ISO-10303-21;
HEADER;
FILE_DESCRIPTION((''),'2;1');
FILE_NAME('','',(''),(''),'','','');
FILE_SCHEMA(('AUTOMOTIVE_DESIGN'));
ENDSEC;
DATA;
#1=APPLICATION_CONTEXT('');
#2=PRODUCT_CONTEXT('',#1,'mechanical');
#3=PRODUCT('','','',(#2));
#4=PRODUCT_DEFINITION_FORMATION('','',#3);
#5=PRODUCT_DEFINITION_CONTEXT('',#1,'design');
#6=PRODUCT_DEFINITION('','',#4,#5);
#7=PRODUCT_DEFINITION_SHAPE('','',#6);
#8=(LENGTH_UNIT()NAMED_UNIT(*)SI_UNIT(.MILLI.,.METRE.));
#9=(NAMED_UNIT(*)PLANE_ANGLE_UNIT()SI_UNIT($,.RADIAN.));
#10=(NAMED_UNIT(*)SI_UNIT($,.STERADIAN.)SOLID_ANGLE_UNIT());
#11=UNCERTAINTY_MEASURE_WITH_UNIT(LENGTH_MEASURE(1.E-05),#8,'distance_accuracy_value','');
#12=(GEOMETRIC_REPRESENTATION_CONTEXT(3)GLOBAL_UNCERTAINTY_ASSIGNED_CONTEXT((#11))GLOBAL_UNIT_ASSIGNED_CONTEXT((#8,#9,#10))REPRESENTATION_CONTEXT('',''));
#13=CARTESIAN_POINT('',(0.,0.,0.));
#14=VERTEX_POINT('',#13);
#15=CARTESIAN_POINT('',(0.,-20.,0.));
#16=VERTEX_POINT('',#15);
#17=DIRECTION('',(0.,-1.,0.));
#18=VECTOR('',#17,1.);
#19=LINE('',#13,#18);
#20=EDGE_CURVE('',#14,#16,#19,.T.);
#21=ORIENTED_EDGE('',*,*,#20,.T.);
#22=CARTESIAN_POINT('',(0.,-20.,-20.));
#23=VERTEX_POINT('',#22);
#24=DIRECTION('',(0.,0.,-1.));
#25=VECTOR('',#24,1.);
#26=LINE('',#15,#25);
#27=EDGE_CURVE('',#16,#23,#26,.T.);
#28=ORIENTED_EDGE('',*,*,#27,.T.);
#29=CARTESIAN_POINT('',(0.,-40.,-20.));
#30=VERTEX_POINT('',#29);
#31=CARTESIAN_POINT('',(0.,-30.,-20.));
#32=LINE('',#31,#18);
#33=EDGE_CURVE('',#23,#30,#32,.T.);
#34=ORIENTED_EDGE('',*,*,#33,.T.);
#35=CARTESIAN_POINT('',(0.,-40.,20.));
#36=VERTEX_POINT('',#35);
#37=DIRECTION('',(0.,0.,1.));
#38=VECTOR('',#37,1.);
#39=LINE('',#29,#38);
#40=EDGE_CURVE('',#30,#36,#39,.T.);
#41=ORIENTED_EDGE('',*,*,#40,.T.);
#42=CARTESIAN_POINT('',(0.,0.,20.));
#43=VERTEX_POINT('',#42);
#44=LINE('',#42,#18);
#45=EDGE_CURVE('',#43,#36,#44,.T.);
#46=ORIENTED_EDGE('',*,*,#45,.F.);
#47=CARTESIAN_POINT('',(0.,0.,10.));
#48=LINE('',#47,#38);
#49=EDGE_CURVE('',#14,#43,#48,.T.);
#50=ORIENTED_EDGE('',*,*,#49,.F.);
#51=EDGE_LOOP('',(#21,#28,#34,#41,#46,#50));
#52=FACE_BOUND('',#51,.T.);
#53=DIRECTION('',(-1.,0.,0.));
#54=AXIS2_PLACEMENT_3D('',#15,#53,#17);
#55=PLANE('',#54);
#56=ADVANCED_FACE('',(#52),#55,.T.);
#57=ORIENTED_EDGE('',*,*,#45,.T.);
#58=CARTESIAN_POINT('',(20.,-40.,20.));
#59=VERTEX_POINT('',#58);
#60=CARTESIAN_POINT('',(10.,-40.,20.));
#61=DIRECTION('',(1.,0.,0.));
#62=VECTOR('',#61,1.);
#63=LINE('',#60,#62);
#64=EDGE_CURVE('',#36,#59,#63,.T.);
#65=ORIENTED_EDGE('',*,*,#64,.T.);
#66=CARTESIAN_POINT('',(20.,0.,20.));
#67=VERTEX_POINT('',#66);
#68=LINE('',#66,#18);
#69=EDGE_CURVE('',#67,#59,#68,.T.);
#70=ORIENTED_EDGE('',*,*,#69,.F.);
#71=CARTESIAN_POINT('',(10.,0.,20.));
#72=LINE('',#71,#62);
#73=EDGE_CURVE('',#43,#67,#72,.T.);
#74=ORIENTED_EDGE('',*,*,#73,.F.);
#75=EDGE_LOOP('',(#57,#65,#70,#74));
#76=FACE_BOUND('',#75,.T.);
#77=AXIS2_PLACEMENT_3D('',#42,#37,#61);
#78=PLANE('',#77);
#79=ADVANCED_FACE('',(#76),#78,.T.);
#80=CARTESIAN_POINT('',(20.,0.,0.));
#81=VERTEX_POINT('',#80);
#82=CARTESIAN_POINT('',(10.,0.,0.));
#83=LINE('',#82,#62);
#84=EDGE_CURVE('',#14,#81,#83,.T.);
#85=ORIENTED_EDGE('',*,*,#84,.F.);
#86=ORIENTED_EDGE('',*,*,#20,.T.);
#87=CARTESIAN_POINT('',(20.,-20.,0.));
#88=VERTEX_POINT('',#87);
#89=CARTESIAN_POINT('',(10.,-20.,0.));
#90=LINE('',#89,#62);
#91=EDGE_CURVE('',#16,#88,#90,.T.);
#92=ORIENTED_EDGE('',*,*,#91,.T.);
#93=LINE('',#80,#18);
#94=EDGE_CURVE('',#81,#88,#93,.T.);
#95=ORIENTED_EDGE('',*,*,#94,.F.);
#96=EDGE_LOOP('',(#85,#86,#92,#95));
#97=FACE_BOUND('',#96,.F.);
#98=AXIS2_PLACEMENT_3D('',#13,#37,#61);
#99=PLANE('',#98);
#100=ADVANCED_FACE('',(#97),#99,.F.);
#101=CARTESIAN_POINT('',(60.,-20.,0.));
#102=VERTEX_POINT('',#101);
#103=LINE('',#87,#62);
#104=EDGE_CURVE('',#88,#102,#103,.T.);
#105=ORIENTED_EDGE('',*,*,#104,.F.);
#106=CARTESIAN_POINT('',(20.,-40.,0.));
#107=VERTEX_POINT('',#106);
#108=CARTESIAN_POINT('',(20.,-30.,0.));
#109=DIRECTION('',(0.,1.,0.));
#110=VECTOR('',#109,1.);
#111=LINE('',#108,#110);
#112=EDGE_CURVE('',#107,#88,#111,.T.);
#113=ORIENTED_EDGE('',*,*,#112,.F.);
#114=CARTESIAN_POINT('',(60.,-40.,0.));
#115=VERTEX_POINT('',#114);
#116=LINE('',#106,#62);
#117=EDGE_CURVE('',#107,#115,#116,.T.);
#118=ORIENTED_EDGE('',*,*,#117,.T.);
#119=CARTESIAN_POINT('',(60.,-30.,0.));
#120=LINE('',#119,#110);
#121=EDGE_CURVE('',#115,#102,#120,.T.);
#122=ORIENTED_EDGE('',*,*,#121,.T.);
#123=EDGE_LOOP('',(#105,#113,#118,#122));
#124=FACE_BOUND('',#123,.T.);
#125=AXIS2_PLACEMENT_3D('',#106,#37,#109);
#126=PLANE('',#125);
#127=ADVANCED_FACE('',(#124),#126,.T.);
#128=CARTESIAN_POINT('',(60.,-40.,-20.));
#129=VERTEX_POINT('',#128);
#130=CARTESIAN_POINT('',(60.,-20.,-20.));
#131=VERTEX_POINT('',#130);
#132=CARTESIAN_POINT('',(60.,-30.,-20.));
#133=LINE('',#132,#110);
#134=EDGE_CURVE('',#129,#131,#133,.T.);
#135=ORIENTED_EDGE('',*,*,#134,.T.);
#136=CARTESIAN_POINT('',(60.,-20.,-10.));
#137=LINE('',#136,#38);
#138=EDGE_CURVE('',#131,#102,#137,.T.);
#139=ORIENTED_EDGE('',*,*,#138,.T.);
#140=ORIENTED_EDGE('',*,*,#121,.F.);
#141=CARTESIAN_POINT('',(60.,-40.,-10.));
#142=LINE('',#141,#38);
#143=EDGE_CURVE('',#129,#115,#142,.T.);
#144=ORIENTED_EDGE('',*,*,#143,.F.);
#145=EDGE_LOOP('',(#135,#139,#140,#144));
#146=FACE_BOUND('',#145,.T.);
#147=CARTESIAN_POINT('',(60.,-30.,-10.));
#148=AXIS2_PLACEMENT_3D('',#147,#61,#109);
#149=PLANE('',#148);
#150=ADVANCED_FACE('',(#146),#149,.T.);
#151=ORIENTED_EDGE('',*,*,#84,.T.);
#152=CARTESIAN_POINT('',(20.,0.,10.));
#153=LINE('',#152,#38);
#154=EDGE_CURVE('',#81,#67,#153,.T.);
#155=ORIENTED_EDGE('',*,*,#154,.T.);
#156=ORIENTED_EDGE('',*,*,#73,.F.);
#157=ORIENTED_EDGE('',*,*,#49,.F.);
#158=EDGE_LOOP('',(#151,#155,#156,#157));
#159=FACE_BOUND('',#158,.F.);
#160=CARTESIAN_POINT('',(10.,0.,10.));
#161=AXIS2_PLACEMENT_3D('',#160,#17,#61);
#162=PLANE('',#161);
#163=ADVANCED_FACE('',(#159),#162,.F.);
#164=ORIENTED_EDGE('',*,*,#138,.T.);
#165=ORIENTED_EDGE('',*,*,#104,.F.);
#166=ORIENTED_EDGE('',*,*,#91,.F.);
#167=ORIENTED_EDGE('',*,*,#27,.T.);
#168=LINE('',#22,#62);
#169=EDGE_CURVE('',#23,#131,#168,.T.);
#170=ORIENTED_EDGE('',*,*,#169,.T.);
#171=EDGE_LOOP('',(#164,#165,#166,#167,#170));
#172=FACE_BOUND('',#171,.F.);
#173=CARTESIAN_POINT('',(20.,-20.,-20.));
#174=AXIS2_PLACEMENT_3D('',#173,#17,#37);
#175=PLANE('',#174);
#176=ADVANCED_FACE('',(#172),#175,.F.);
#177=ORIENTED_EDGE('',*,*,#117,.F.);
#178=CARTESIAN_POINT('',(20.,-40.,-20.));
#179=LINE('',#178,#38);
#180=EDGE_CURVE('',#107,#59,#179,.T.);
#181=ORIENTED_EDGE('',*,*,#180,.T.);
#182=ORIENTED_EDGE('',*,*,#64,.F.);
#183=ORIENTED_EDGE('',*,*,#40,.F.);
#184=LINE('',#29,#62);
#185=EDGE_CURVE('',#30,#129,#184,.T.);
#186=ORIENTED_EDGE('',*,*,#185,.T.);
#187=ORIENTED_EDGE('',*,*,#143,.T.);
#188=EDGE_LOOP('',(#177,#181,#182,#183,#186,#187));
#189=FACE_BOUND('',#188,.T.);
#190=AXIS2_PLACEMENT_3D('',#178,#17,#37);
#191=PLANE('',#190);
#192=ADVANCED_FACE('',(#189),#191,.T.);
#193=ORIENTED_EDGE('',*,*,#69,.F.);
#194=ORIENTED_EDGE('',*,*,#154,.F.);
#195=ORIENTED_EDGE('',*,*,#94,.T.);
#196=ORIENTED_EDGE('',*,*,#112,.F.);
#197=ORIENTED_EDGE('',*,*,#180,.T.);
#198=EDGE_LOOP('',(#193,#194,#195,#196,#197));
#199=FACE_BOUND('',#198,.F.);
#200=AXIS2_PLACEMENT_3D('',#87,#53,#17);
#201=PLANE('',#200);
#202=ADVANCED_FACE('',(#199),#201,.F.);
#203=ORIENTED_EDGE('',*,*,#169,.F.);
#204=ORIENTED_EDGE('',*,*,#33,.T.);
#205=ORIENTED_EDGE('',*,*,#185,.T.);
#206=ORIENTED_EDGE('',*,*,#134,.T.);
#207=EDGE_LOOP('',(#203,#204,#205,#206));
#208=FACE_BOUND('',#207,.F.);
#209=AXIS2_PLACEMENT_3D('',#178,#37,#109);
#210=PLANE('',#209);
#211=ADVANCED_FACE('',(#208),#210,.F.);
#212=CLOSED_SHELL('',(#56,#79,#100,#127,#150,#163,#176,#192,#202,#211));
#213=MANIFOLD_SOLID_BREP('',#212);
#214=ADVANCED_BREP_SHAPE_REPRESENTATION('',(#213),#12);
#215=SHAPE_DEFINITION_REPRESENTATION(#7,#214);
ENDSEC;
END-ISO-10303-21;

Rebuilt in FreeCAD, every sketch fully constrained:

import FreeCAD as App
import Part
import Sketcher

doc = App.newDocument("Part")
body = doc.addObject("PartDesign::Body", "Body")

sketch1 = body.newObject("Sketcher::SketchObject", "Sketch")
sketch1.AttachmentSupport = (doc.getObject("XZ_Plane"), [""])
sketch1.MapMode = "FlatFace"
sketch1.addGeometry(Part.LineSegment(App.Vector(0, 20, 0), App.Vector(0, 0, 0)), False)
sketch1.addGeometry(Part.LineSegment(App.Vector(0, 0, 0), App.Vector(20, 0, 0)), False)
sketch1.addGeometry(Part.LineSegment(App.Vector(20, 0, 0), App.Vector(20, 20, 0)), False)
sketch1.addGeometry(Part.LineSegment(App.Vector(20, 20, 0), App.Vector(0, 20, 0)), False)
sketch1.addConstraint(Sketcher.Constraint("Coincident", 0, 2, 1, 1))
sketch1.addConstraint(Sketcher.Constraint("Coincident", 1, 2, 2, 1))
sketch1.addConstraint(Sketcher.Constraint("Coincident", 2, 2, 3, 1))
sketch1.addConstraint(Sketcher.Constraint("Coincident", 3, 2, 0, 1))
sketch1.addConstraint(Sketcher.Constraint("Vertical", 0))
sketch1.addConstraint(Sketcher.Constraint("Horizontal", 1))
sketch1.addConstraint(Sketcher.Constraint("Vertical", 2))
sketch1.addConstraint(Sketcher.Constraint("Horizontal", 3))
sketch1.addConstraint(Sketcher.Constraint("Coincident", 0, 2, -1, 1))
sketch1.addConstraint(Sketcher.Constraint("Equal", 3, 0))
sketch1.addConstraint(Sketcher.Constraint("DistanceX", 1, 1, 1, 2, 20.0))
pad1 = body.newObject("PartDesign::Pad", "Pad")
pad1.Profile = sketch1
pad1.Length = 40

sketch2 = body.newObject("Sketcher::SketchObject", "Sketch001")
sketch2.AttachmentSupport = (doc.getObject("XY_Plane"), [""])
sketch2.MapMode = "FlatFace"
sketch2.addGeometry(Part.LineSegment(App.Vector(0, -40, 0), App.Vector(0, -20, 0)), False)
sketch2.addGeometry(Part.LineSegment(App.Vector(0, -20, 0), App.Vector(20, -20, 0)), False)
sketch2.addGeometry(Part.LineSegment(App.Vector(20, -20, 0), App.Vector(20, -40, 0)), False)
sketch2.addGeometry(Part.LineSegment(App.Vector(20, -40, 0), App.Vector(0, -40, 0)), False)
sketch2.addConstraint(Sketcher.Constraint("Coincident", 0, 2, 1, 1))
sketch2.addConstraint(Sketcher.Constraint("Coincident", 1, 2, 2, 1))
sketch2.addConstraint(Sketcher.Constraint("Coincident", 2, 2, 3, 1))
sketch2.addConstraint(Sketcher.Constraint("Coincident", 3, 2, 0, 1))
sketch2.addConstraint(Sketcher.Constraint("Vertical", 0))
sketch2.addConstraint(Sketcher.Constraint("Horizontal", 1))
sketch2.addConstraint(Sketcher.Constraint("Vertical", 2))
sketch2.addConstraint(Sketcher.Constraint("Horizontal", 3))
sketch2.addConstraint(Sketcher.Constraint("PointOnObject", 0, 2, -2))
sketch2.addConstraint(Sketcher.Constraint("Equal", 3, 0))
sketch2.addConstraint(Sketcher.Constraint("DistanceX", 1, 1, 1, 2, 20.0))
sketch2.addConstraint(Sketcher.Constraint("DistanceY", 0, 2, -1, 1, 20.0))
pad2 = body.newObject("PartDesign::Pad", "Pad001")
pad2.Profile = sketch2
pad2.Length = 20
pad2.Reversed = True

sketch3 = body.newObject("Sketcher::SketchObject", "Sketch002")
sketch3.AttachmentSupport = (doc.getObject("YZ_Plane"), [""])
sketch3.MapMode = "FlatFace"
sketch3.AttachmentOffset = App.Placement(App.Vector(0, 0, 20), App.Rotation())
sketch3.addGeometry(Part.LineSegment(App.Vector(-40, 0, 0), App.Vector(-40, -20, 0)), False)
sketch3.addGeometry(Part.LineSegment(App.Vector(-40, -20, 0), App.Vector(-20, -20, 0)), False)
sketch3.addGeometry(Part.LineSegment(App.Vector(-20, -20, 0), App.Vector(-20, 0, 0)), False)
sketch3.addGeometry(Part.LineSegment(App.Vector(-20, 0, 0), App.Vector(-40, 0, 0)), False)
sketch3.addConstraint(Sketcher.Constraint("Coincident", 0, 2, 1, 1))
sketch3.addConstraint(Sketcher.Constraint("Coincident", 1, 2, 2, 1))
sketch3.addConstraint(Sketcher.Constraint("Coincident", 2, 2, 3, 1))
sketch3.addConstraint(Sketcher.Constraint("Coincident", 3, 2, 0, 1))
sketch3.addConstraint(Sketcher.Constraint("Vertical", 0))
sketch3.addConstraint(Sketcher.Constraint("Horizontal", 1))
sketch3.addConstraint(Sketcher.Constraint("Vertical", 2))
sketch3.addConstraint(Sketcher.Constraint("Horizontal", 3))
sketch3.addConstraint(Sketcher.Constraint("PointOnObject", 2, 2, -1))
sketch3.addConstraint(Sketcher.Constraint("Equal", 3, 0))
sketch3.addConstraint(Sketcher.Constraint("DistanceX", 1, 1, 1, 2, 20.0))
sketch3.addConstraint(Sketcher.Constraint("DistanceX", 0, 2, -1, 1, 40.0))
pad3 = body.newObject("PartDesign::Pad", "Pad002")
pad3.Profile = sketch3
pad3.Length = 40

doc.recompute()
